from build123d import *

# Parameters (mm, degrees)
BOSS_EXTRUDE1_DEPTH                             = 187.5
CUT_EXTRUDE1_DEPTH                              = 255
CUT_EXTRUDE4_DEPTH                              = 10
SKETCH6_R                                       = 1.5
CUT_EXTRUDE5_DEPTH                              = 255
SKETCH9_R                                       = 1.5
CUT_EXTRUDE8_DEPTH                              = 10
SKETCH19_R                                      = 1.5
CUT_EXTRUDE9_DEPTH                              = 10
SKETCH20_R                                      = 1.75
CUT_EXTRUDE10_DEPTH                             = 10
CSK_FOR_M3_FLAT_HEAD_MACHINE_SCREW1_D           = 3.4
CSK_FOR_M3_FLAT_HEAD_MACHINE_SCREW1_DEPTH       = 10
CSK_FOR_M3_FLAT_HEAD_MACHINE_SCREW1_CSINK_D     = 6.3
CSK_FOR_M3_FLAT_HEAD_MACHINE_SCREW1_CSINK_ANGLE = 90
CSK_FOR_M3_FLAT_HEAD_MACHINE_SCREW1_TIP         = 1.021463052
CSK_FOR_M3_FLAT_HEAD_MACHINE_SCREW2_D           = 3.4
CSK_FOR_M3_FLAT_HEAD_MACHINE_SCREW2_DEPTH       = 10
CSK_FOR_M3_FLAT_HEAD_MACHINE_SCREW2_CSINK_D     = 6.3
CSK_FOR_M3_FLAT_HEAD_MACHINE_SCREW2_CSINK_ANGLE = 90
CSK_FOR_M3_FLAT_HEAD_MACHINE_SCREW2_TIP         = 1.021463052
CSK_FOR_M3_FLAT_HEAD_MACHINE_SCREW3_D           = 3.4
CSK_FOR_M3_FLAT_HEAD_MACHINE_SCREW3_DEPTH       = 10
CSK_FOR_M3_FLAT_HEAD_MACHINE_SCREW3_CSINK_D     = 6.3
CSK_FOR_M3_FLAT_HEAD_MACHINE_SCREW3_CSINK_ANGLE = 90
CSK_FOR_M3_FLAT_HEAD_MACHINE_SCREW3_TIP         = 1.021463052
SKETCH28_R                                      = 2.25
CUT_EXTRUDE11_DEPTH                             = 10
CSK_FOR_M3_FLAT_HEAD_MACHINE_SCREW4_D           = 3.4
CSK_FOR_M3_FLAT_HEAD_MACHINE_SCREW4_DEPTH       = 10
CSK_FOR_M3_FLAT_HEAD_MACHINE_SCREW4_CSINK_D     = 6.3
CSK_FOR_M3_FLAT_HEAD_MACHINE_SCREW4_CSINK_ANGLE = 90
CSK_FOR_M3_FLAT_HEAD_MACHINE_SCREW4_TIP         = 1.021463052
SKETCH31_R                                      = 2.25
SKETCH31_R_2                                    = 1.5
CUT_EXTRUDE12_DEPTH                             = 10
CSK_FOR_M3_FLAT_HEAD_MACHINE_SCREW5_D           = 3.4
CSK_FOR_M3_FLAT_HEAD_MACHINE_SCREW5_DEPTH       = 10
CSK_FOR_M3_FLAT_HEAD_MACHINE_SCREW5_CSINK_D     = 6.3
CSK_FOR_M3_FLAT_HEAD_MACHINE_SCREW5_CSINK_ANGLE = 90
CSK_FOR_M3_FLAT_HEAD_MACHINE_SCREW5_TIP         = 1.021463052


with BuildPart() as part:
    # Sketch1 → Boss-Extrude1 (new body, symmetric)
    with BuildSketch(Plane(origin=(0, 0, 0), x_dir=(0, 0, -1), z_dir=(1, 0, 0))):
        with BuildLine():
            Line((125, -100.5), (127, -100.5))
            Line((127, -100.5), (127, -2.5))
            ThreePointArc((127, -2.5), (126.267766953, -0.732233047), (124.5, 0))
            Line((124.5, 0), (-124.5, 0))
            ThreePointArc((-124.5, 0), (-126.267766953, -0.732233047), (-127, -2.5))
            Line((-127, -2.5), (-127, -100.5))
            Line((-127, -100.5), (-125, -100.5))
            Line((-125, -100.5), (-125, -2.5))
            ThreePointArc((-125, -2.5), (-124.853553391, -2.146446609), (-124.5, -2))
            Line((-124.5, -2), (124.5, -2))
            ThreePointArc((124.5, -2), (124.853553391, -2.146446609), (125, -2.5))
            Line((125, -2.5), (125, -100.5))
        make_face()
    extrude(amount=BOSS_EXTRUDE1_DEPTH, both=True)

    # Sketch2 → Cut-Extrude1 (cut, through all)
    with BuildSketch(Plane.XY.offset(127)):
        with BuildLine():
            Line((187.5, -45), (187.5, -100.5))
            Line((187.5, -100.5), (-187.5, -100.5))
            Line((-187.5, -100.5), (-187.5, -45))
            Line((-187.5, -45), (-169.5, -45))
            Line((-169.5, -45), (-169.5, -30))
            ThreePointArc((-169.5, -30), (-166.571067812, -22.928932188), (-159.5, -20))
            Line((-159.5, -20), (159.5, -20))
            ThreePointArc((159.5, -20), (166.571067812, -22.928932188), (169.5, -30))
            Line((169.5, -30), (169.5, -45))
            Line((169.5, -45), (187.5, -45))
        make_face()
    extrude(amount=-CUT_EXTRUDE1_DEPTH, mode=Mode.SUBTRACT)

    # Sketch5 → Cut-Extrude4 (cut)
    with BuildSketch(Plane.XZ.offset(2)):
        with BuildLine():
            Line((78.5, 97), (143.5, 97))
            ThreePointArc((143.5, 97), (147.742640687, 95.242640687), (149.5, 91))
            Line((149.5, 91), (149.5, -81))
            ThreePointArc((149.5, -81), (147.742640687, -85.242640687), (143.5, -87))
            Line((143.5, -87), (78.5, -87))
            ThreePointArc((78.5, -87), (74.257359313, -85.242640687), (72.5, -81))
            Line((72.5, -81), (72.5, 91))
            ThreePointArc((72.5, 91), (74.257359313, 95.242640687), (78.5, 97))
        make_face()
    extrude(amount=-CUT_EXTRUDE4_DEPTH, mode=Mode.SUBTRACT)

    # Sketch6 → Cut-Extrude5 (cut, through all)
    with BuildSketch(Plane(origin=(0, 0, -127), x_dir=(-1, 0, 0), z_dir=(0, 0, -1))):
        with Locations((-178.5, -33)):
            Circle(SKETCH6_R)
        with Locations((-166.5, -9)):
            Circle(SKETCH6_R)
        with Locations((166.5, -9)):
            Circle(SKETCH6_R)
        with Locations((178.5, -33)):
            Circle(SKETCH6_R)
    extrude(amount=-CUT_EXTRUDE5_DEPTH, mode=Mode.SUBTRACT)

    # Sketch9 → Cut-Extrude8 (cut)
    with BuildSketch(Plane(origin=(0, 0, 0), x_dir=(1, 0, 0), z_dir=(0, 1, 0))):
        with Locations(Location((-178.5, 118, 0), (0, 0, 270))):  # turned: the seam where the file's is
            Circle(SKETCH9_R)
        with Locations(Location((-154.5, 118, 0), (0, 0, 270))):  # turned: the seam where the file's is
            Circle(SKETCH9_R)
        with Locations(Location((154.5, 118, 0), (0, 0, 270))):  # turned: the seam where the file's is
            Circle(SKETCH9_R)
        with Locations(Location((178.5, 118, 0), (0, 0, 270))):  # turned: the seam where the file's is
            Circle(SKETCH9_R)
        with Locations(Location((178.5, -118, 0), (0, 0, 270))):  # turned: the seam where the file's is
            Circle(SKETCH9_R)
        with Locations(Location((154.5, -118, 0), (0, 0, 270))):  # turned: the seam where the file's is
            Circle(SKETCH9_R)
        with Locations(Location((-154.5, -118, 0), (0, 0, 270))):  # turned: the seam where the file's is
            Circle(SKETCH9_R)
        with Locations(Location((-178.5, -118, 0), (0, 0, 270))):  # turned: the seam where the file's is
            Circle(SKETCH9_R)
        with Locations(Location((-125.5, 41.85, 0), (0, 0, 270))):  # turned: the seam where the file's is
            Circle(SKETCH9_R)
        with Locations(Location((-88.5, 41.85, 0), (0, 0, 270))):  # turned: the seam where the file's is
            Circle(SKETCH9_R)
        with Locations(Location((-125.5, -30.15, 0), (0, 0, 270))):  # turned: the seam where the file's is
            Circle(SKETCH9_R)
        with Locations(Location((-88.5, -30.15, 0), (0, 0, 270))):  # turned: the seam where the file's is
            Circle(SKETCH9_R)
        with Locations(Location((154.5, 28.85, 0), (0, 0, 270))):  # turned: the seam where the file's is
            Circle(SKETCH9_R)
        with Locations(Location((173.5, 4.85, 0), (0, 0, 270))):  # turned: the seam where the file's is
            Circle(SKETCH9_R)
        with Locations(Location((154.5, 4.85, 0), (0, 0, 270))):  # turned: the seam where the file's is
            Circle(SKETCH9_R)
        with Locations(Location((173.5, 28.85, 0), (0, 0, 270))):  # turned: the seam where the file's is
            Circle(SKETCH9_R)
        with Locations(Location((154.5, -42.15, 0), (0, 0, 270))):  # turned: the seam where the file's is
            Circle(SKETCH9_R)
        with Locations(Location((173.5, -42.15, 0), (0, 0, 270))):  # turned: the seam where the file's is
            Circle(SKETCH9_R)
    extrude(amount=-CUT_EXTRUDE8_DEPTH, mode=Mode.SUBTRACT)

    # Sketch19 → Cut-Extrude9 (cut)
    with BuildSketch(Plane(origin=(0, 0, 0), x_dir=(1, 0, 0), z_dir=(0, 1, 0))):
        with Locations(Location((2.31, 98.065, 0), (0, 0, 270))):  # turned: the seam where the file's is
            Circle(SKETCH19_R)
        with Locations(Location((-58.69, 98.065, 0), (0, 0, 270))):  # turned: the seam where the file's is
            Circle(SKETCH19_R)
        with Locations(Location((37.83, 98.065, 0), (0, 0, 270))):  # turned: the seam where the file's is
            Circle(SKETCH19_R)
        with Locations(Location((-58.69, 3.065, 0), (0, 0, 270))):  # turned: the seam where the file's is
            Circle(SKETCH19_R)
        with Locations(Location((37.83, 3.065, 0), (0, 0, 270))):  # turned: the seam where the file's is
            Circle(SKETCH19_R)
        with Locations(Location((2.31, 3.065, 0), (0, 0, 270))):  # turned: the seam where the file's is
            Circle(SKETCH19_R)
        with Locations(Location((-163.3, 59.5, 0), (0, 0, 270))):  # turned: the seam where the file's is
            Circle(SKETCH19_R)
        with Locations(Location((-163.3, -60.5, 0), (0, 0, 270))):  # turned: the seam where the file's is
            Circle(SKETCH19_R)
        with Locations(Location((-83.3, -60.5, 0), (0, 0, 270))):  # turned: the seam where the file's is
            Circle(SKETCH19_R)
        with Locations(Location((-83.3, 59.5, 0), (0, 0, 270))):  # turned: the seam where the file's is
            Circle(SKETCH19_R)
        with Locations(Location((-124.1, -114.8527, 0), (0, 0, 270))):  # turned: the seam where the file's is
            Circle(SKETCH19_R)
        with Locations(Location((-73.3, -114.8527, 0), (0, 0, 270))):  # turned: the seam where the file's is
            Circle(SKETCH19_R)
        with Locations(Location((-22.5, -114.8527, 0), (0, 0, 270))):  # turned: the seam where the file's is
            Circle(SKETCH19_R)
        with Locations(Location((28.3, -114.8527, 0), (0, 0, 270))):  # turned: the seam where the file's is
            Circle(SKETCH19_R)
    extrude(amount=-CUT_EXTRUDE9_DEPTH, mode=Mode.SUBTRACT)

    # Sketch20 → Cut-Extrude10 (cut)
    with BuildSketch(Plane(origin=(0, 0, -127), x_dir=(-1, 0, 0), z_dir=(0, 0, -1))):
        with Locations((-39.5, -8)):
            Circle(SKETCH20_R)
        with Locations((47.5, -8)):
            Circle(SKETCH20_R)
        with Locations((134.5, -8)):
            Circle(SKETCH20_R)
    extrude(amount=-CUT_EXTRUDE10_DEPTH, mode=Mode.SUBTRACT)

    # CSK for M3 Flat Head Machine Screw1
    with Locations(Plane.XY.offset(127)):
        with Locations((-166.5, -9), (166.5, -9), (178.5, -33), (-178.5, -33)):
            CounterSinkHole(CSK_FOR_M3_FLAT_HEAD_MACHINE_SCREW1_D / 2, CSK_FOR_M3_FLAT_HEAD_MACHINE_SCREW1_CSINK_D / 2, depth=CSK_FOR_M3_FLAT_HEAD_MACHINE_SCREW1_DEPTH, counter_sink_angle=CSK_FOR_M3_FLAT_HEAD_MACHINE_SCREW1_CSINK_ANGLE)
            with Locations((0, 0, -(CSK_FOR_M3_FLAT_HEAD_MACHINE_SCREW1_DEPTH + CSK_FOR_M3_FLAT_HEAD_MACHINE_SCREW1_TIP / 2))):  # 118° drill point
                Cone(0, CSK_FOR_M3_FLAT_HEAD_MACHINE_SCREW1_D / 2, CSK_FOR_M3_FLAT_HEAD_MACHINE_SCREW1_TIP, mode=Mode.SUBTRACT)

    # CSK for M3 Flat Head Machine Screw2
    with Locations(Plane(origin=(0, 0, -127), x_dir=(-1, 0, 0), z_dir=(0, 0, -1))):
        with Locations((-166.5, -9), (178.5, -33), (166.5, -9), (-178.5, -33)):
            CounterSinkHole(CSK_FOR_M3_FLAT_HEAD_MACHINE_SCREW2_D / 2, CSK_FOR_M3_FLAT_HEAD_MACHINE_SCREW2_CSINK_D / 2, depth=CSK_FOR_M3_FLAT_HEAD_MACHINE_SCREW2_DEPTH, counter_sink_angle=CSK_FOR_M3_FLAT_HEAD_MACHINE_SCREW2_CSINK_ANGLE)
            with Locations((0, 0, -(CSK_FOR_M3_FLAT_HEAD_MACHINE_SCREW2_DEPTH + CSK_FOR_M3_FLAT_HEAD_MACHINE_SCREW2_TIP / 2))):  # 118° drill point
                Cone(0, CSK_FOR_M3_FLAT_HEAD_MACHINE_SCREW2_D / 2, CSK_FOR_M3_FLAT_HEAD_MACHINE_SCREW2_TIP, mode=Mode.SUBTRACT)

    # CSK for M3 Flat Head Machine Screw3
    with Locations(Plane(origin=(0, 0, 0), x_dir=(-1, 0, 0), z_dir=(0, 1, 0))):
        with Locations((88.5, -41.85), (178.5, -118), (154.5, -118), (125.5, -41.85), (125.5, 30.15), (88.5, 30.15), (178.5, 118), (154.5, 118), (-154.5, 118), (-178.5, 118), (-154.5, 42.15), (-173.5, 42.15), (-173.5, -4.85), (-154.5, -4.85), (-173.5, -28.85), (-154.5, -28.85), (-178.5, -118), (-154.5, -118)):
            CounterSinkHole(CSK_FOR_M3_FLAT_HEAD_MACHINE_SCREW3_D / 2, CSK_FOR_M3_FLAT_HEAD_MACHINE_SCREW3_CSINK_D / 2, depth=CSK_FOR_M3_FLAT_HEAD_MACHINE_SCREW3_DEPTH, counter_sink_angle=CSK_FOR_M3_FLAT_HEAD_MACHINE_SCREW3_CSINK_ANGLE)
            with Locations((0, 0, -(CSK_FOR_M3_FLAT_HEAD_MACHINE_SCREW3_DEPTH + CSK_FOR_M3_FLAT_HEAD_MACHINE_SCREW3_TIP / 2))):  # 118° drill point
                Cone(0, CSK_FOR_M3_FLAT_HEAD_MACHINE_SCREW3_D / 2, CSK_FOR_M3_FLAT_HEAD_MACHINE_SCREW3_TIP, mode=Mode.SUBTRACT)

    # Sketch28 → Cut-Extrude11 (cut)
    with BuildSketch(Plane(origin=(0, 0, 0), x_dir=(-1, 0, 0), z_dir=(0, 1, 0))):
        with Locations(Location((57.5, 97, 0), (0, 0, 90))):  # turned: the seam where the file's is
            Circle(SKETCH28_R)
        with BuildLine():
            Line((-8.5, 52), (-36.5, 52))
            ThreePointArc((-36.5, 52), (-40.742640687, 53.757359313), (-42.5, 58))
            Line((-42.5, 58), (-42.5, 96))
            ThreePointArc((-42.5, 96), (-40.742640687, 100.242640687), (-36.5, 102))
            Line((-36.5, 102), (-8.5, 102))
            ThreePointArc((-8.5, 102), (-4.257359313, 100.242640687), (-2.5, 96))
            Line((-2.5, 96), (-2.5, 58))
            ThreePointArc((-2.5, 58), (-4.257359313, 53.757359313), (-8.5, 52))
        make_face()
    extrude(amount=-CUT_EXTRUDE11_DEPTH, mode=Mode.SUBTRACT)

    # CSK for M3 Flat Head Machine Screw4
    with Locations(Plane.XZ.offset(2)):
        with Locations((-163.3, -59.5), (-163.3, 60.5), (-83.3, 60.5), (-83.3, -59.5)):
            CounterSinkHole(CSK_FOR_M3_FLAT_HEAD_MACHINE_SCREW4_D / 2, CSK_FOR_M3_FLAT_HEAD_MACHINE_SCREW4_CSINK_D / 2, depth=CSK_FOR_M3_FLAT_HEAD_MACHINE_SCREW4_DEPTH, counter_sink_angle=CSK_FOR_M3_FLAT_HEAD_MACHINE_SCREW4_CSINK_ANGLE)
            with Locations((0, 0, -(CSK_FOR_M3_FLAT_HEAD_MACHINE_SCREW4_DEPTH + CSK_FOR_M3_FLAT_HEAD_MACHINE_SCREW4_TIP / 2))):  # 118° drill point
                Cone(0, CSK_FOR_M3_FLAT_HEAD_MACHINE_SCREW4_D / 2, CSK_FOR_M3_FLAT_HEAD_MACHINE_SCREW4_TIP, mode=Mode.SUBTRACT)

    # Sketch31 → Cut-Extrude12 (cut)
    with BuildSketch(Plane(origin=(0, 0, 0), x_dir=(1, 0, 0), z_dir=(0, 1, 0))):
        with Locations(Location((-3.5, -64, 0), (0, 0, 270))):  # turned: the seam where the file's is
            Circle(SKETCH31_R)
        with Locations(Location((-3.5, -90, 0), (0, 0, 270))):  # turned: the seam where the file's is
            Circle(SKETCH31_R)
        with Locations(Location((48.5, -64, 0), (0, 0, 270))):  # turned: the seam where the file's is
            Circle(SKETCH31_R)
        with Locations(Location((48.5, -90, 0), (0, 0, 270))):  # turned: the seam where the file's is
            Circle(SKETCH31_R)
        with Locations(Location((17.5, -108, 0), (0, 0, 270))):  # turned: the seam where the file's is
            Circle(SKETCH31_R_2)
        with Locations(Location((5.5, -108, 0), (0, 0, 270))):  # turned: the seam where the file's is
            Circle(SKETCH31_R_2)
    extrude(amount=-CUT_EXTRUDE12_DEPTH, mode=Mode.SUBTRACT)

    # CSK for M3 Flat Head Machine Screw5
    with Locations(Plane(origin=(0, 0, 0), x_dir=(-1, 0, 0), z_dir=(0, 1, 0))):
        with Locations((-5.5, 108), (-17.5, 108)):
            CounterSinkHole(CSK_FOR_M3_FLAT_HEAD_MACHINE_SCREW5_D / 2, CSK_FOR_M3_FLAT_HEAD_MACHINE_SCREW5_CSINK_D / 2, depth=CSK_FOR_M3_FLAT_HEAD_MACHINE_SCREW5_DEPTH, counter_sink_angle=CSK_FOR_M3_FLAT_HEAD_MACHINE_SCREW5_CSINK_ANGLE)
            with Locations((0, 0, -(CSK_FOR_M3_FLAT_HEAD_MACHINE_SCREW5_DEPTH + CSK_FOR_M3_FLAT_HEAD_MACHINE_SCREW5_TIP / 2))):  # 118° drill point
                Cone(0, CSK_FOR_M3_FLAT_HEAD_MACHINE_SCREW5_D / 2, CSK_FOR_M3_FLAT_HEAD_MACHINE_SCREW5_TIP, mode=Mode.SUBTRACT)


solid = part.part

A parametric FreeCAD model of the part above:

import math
import FreeCAD as App
import Part
import Sketcher
from FreeCAD import Vector
Q = App.Units.Quantity

doc = App.newDocument("Part")
body = doc.addObject("PartDesign::Body", "Body")

# Sketch on YZ plane
sketch1 = body.newObject("Sketcher::SketchObject", "Sketch")
sketch1.AttachmentSupport = (doc.getObject("YZ_Plane"), [""])
sketch1.MapMode = "FlatFace"
sketch1.addGeometry([
    Part.LineSegment(Vector(-100.5, -125, 0), Vector(-100.5, -127, 0)),  # 0
    Part.LineSegment(Vector(-100.5, -127, 0), Vector(-2.5, -127, 0)),  # 1
    Part.ArcOfCircle(Part.Circle(Vector(-2.5, -124.5, 0), Vector(0, 0, 1), 2.5), math.radians(-90), math.radians(0)),  # 2
    Part.LineSegment(Vector(0, -124.5, 0), Vector(0, 124.5, 0)),  # 3
    Part.ArcOfCircle(Part.Circle(Vector(-2.5, 124.5, 0), Vector(0, 0, 1), 2.5), math.radians(0), math.radians(90)),  # 4
    Part.LineSegment(Vector(-2.5, 127, 0), Vector(-100.5, 127, 0)),  # 5
    Part.LineSegment(Vector(-100.5, 127, 0), Vector(-100.5, 125, 0)),  # 6
    Part.LineSegment(Vector(-100.5, 125, 0), Vector(-2.5, 125, 0)),  # 7
    Part.ArcOfCircle(Part.Circle(Vector(-2.5, 124.5, 0), Vector(0, 0, 1), 0.5), math.radians(0), math.radians(90)),  # 8
    Part.LineSegment(Vector(-2, 124.5, 0), Vector(-2, -124.5, 0)),  # 9
    Part.ArcOfCircle(Part.Circle(Vector(-2.5, -124.5, 0), Vector(0, 0, 1), 0.5), math.radians(-90), math.radians(0)),  # 10
    Part.LineSegment(Vector(-2.5, -125, 0), Vector(-100.5, -125, 0)),  # 11
], False)
sketch1.addConstraint([
    Sketcher.Constraint("Coincident", 0, 2, 1, 1),
    Sketcher.Constraint("Tangent", 1, 2, 2, 1),
    Sketcher.Constraint("Tangent", 2, 2, 3, 1),
    Sketcher.Constraint("Tangent", 3, 2, 4, 1),
    Sketcher.Constraint("Tangent", 4, 2, 5, 1),
    Sketcher.Constraint("Coincident", 5, 2, 6, 1),
    Sketcher.Constraint("Coincident", 6, 2, 7, 1),
    Sketcher.Constraint("Tangent", 7, 2, 8, 2),
    Sketcher.Constraint("Tangent", 8, 1, 9, 1),
    Sketcher.Constraint("Tangent", 9, 2, 10, 2),
    Sketcher.Constraint("Tangent", 10, 1, 11, 1),
    Sketcher.Constraint("Coincident", 11, 2, 0, 1),
    Sketcher.Constraint("Vertical", 0),
    Sketcher.Constraint("Horizontal", 1),
    Sketcher.Constraint("Vertical", 3),
    Sketcher.Constraint("Horizontal", 5),
    Sketcher.Constraint("Vertical", 6),
    Sketcher.Constraint("Horizontal", 7),
    Sketcher.Constraint("Vertical", 9),
    Sketcher.Constraint("Horizontal", 11),
    Sketcher.Constraint("Coincident", 8, 3, 4, 3),
    Sketcher.Constraint("Coincident", 10, 3, 2, 3),
    Sketcher.Constraint("Equal", 2, 4),
    Sketcher.Constraint("Symmetric", 2, 2, 3, 2, -1, 1),
    Sketcher.Constraint("Vertical", 0, 2, 5, 2),
    Sketcher.Constraint("Radius", 2, Q("2.5 mm")),
    Sketcher.Constraint("Radius", 8, Q("0.5 mm")),
    Sketcher.Constraint("DistanceX", 1, 1, 1, 2, Q("98 mm")),
    Sketcher.Constraint("DistanceY", 3, 1, 3, 2, Q("249 mm")),
])
pad1 = body.newObject("PartDesign::Pad", "Pad")
pad1.Profile = sketch1
pad1.Length = 375
pad1.Midplane = True

# Sketch on XY plane
sketch2 = body.newObject("Sketcher::SketchObject", "Sketch001")
sketch2.AttachmentSupport = (doc.getObject("XY_Plane"), [""])
sketch2.MapMode = "FlatFace"
sketch2.AttachmentOffset = App.Placement(Vector(0, 0, 127), App.Rotation())
sketch2.addGeometry([
    Part.LineSegment(Vector(188, -100, 0), Vector(188, -45, 0)),  # 0
    Part.LineSegment(Vector(188, -45, 0), Vector(170, -45, 0)),  # 1
    Part.LineSegment(Vector(170, -45, 0), Vector(170, -30, 0)),  # 2
    Part.ArcOfCircle(Part.Circle(Vector(160, -30, 0), Vector(0, 0, 1), 10), math.radians(0), math.radians(90)),  # 3
    Part.LineSegment(Vector(160, -20, 0), Vector(-160, -20, 0)),  # 4
    Part.ArcOfCircle(Part.Circle(Vector(-160, -30, 0), Vector(0, 0, 1), 10), math.radians(90), math.radians(180)),  # 5
    Part.LineSegment(Vector(-170, -30, 0), Vector(-170, -45, 0)),  # 6
    Part.LineSegment(Vector(-170, -45, 0), Vector(-188, -45, 0)),  # 7
    Part.LineSegment(Vector(-188, -45, 0), Vector(-188, -100, 0)),  # 8
    Part.LineSegment(Vector(-188, -100, 0), Vector(188, -100, 0)),  # 9
], False)
sketch2.addConstraint([
    Sketcher.Constraint("Coincident", 0, 2, 1, 1),
    Sketcher.Constraint("Coincident", 1, 2, 2, 1),
    Sketcher.Constraint("Tangent", 2, 2, 3, 1),
    Sketcher.Constraint("Tangent", 3, 2, 4, 1),
    Sketcher.Constraint("Tangent", 4, 2, 5, 1),
    Sketcher.Constraint("Tangent", 5, 2, 6, 1),
    Sketcher.Constraint("Coincident", 6, 2, 7, 1),
    Sketcher.Constraint("Coincident", 7, 2, 8, 1),
    Sketcher.Constraint("Coincident", 8, 2, 9, 1),
    Sketcher.Constraint("Coincident", 9, 2, 0, 1),
    Sketcher.Constraint("Vertical", 0),
    Sketcher.Constraint("Horizontal", 1),
    Sketcher.Constraint("Vertical", 2),
    Sketcher.Constraint("Horizontal", 4),
    Sketcher.Constraint("Vertical", 6),
    Sketcher.Constraint("Horizontal", 7),
    Sketcher.Constraint("Vertical", 8),
    Sketcher.Constraint("Horizontal", 9),
    Sketcher.Constraint("Equal", 3, 5),
    Sketcher.Constraint("Symmetric", 1, 2, 6, 2, -2),
    Sketcher.Constraint("Equal", 1, 7),
    Sketcher.Constraint("Radius", 3, Q("10 mm")),
    Sketcher.Constraint("DistanceX", 1, 2, 1, 1, Q("18 mm")),
    Sketcher.Constraint("DistanceX", 4, 2, 4, 1, Q("319 mm")),
    Sketcher.Constraint("DistanceY", 2, 1, 2, 2, Q("15 mm")),
    Sketcher.Constraint("DistanceY", 0, 1, 0, 2, Q("55.5 mm")),
    Sketcher.Constraint("DistanceY", 3, 3, -1, 1, Q("30 mm")),
])
pocket1 = body.newObject("PartDesign::Pocket", "Pocket")
pocket1.Profile = sketch2
pocket1.Type = "ThroughAll"

# Sketch on XZ plane
sketch3 = body.newObject("Sketcher::SketchObject", "Sketch002")
sketch3.AttachmentSupport = (doc.getObject("XZ_Plane"), [""])
sketch3.MapMode = "FlatFace"
sketch3.AttachmentOffset = App.Placement(Vector(0, 0, 2), App.Rotation())
sketch3.addGeometry([
    Part.LineSegment(Vector(144, 97, 0), Vector(78, 97, 0)),  # 0
    Part.ArcOfCircle(Part.Circle(Vector(78, 91, 0), Vector(0, 0, 1), 6), math.radians(90), math.radians(180)),  # 1
    Part.LineSegment(Vector(72, 91, 0), Vector(72, -81, 0)),  # 2
    Part.ArcOfCircle(Part.Circle(Vector(78, -81, 0), Vector(0, 0, 1), 6), math.radians(180), math.radians(270)),  # 3
    Part.LineSegment(Vector(78, -87, 0), Vector(144, -87, 0)),  # 4
    Part.ArcOfCircle(Part.Circle(Vector(144, -81, 0), Vector(0, 0, 1), 6), math.radians(-90), math.radians(0)),  # 5
    Part.LineSegment(Vector(150, -81, 0), Vector(150, 91, 0)),  # 6
    Part.ArcOfCircle(Part.Circle(Vector(144, 91, 0), Vector(0, 0, 1), 6), math.radians(0), math.radians(90)),  # 7
], False)
sketch3.addConstraint([
    Sketcher.Constraint("Tangent", 0, 2, 1, 1),
    Sketcher.Constraint("Tangent", 1, 2, 2, 1),
    Sketcher.Constraint("Tangent", 2, 2, 3, 1),
    Sketcher.Constraint("Tangent", 3, 2, 4, 1),
    Sketcher.Constraint("Tangent", 4, 2, 5, 1),
    Sketcher.Constraint("Tangent", 5, 2, 6, 1),
    Sketcher.Constraint("Tangent", 6, 2, 7, 1),
    Sketcher.Constraint("Tangent", 7, 2, 0, 1),
    Sketcher.Constraint("Horizontal", 0),
    Sketcher.Constraint("Vertical", 2),
    Sketcher.Constraint("Horizontal", 4),
    Sketcher.Constraint("Vertical", 6),
    Sketcher.Constraint("Equal", 1, 3),
    Sketcher.Constraint("Equal", 3, 5),
    Sketcher.Constraint("Equal", 5, 7),
    Sketcher.Constraint("Radius", 1, Q("6 mm")),
    Sketcher.Constraint("DistanceX", 0, 2, 0, 1, Q("65 mm")),
    Sketcher.Constraint("DistanceY", 2, 2, 2, 1, Q("172 mm")),
    Sketcher.Constraint("DistanceY", -1, 1, 1, 3, Q("91 mm")),
    Sketcher.Constraint("DistanceX", -1, 1, 1, 3, Q("78.5 mm")),
])
pocket2 = body.newObject("PartDesign::Pocket", "Pocket001")
pocket2.Profile = sketch3
pocket2.Length = 10

# Sketch on XY plane
sketch4 = body.newObject("Sketcher::SketchObject", "Sketch003")
sketch4.AttachmentSupport = (doc.getObject("XY_Plane"), [""])
sketch4.MapMode = "FlatFace"
sketch4.AttachmentOffset = App.Placement(Vector(0, 0, -127), App.Rotation())
sketch4.addGeometry([
    Part.Circle(Vector(178.5, -33, 0), Vector(0, 0, 1), 1.5),
    Part.Circle(Vector(166.5, -9, 0), Vector(0, 0, 1), 1.5),
    Part.Circle(Vector(-166.5, -9, 0), Vector(0, 0, 1), 1.5),
    Part.Circle(Vector(-178.5, -33, 0), Vector(0, 0, 1), 1.5),
], False)
sketch4.addConstraint([
    Sketcher.Constraint("Equal", 0, 1),
    Sketcher.Constraint("Equal", 1, 2),
    Sketcher.Constraint("Equal", 2, 3),
    Sketcher.Constraint("Symmetric", 1, 3, 2, 3, -2),
    Sketcher.Constraint("Symmetric", 0, 3, 3, 3, -2),
    Sketcher.Constraint("Diameter", 0, Q("3 mm")),
    Sketcher.Constraint("DistanceY", 0, 3, -1, 1, Q("33 mm")),
    Sketcher.Constraint("DistanceY", 1, 3, -1, 1, Q("9 mm")),
    Sketcher.Constraint("DistanceX", 1, 3, 0, 3, Q("12 mm")),
    Sketcher.Constraint("DistanceX", 2, 3, 1, 3, Q("333 mm")),
])
pocket3 = body.newObject("PartDesign::Pocket", "Pocket002")
pocket3.Profile = sketch4
pocket3.Type = "ThroughAll"
pocket3.Reversed = True

# Sketch on XZ plane
sketch5 = body.newObject("Sketcher::SketchObject", "Sketch004")
sketch5.AttachmentSupport = (doc.getObject("XZ_Plane"), [""])
sketch5.MapMode = "FlatFace"
sketch5.addGeometry([
    Part.Circle(Vector(-178.5, -118, 0), Vector(0, 0, 1), 1.5),  # 0
    Part.Circle(Vector(-154.5, -118, 0), Vector(0, 0, 1), 1.5),  # 1
    Part.Circle(Vector(154.5, -118, 0), Vector(0, 0, 1), 1.5),  # 2
    Part.Circle(Vector(178.5, -118, 0), Vector(0, 0, 1), 1.5),  # 3
    Part.Circle(Vector(178.5, 118, 0), Vector(0, 0, 1), 1.5),  # 4
    Part.Circle(Vector(154.5, 118, 0), Vector(0, 0, 1), 1.5),  # 5
    Part.Circle(Vector(-154.5, 118, 0), Vector(0, 0, 1), 1.5),  # 6
    Part.Circle(Vector(-178.5, 118, 0), Vector(0, 0, 1), 1.5),  # 7
    Part.Circle(Vector(-125.5, -41.9, 0), Vector(0, 0, 1), 1.5),  # 8
    Part.Circle(Vector(-88.5, -41.9, 0), Vector(0, 0, 1), 1.5),  # 9
    Part.Circle(Vector(-125.5, 30.1, 0), Vector(0, 0, 1), 1.5),  # 10
    Part.Circle(Vector(-88.5, 30.1, 0), Vector(0, 0, 1), 1.5),  # 11
    Part.Circle(Vector(154.5, -28.9, 0), Vector(0, 0, 1), 1.5),  # 12
    Part.Circle(Vector(173.5, -4.8, 0), Vector(0, 0, 1), 1.5),  # 13
    Part.Circle(Vector(154.5, -4.8, 0), Vector(0, 0, 1), 1.5),  # 14
    Part.Circle(Vector(173.5, -28.9, 0), Vector(0, 0, 1), 1.5),  # 15
    Part.Circle(Vector(154.5, 42.1, 0), Vector(0, 0, 1), 1.5),  # 16
    Part.Circle(Vector(173.5, 42.1, 0), Vector(0, 0, 1), 1.5),  # 17
], False)
sketch5.addConstraint([
    Sketcher.Constraint("Equal", 0, 1),
    Sketcher.Constraint("Equal", 1, 2),
    Sketcher.Constraint("Equal", 2, 3),
    Sketcher.Constraint("Equal", 3, 4),
    Sketcher.Constraint("Equal", 4, 5),
    Sketcher.Constraint("Equal", 5, 6),
    Sketcher.Constraint("Equal", 6, 7),
    Sketcher.Constraint("Equal", 7, 8),
    Sketcher.Constraint("Equal", 8, 9),
    Sketcher.Constraint("Equal", 9, 10),
    Sketcher.Constraint("Equal", 10, 11),
    Sketcher.Constraint("Equal", 11, 12),
    Sketcher.Constraint("Equal", 12, 13),
    Sketcher.Constraint("Equal", 13, 14),
    Sketcher.Constraint("Equal", 14, 15),
    Sketcher.Constraint("Equal", 15, 16),
    Sketcher.Constraint("Equal", 16, 17),
    Sketcher.Constraint("Symmetric", 0, 3, 4, 3, -1, 1),
    Sketcher.Constraint("Symmetric", 1, 3, 5, 3, -1, 1),
    Sketcher.Constraint("Symmetric", 2, 3, 6, 3, -1, 1),
    Sketcher.Constraint("Symmetric", 3, 3, 7, 3, -1, 1),
    Sketcher.Constraint("Symmetric", 1, 3, 2, 3, -2),
    Sketcher.Constraint("Symmetric", 0, 3, 3, 3, -2),
    Sketcher.Constraint("Horizontal", 0, 3, 1, 3),
    Sketcher.Constraint("Horizontal", 8, 3, 9, 3),
    Sketcher.Constraint("Horizontal", 10, 3, 11, 3),
    Sketcher.Constraint("Horizontal", 13, 3, 14, 3),
    Sketcher.Constraint("Horizontal", 12, 3, 15, 3),
    Sketcher.Constraint("Horizontal", 16, 3, 17, 3),
    Sketcher.Constraint("Vertical", 8, 3, 10, 3),
    Sketcher.Constraint("Vertical", 9, 3, 11, 3),
    Sketcher.Constraint("Vertical", 5, 3, 12, 3),
    Sketcher.Constraint("Vertical", 12, 3, 14, 3),
    Sketcher.Constraint("Vertical", 13, 3, 15, 3),
    Sketcher.Constraint("Vertical", 14, 3, 16, 3),
    Sketcher.Constraint("Vertical", 15, 3, 17, 3),
    Sketcher.Constraint("Diameter", 0, Q("3 mm")),
    Sketcher.Constraint("DistanceY", 0, 3, -1, 1, Q("118 mm")),
    Sketcher.Constraint("DistanceX", 0, 3, 1, 3, Q("24 mm")),
    Sketcher.Constraint("DistanceX", 1, 3, 2, 3, Q("309 mm")),
    Sketcher.Constraint("DistanceX", 1, 3, 8, 3, Q("29 mm")),
    Sketcher.Constraint("DistanceX", 8, 3, 9, 3, Q("37 mm")),
    Sketcher.Constraint("DistanceY", 8, 3, 10, 3, Q("72 mm")),
    Sketcher.Constraint("DistanceY", 9, 3, 12, 3, Q("13 mm")),
    Sketcher.Constraint("DistanceX", 12, 3, 13, 3, Q("19 mm")),
    Sketcher.Constraint("DistanceY", 12, 3, 13, 3, Q("24 mm")),
    Sketcher.Constraint("DistanceY", 14, 3, 16, 3, Q("47 mm")),
    Sketcher.Constraint("DistanceY", 8, 3, -1, 1, Q("41.85 mm")),
])
pocket4 = body.newObject("PartDesign::Pocket", "Pocket003")
pocket4.Profile = sketch5
pocket4.Length = 10
pocket4.Reversed = True

# Sketch on XZ plane
sketch6 = body.newObject("Sketcher::SketchObject", "Sketch005")
sketch6.AttachmentSupport = (doc.getObject("XZ_Plane"), [""])
sketch6.MapMode = "FlatFace"
sketch6.addGeometry([
    Part.Circle(Vector(2.3, -98.1, 0), Vector(0, 0, 1), 1.5),  # 0
    Part.Circle(Vector(-58.7, -98.1, 0), Vector(0, 0, 1), 1.5),  # 1
    Part.Circle(Vector(37.8, -98.1, 0), Vector(0, 0, 1), 1.5),  # 2
    Part.Circle(Vector(-58.7, -3.1, 0), Vector(0, 0, 1), 1.5),  # 3
    Part.Circle(Vector(37.8, -3.1, 0), Vector(0, 0, 1), 1.5),  # 4
    Part.Circle(Vector(2.3, -3.1, 0), Vector(0, 0, 1), 1.5),  # 5
    Part.Circle(Vector(-163.3, -59.5, 0), Vector(0, 0, 1), 1.5),  # 6
    Part.Circle(Vector(-163.3, 60.5, 0), Vector(0, 0, 1), 1.5),  # 7
    Part.Circle(Vector(-83.3, 60.5, 0), Vector(0, 0, 1), 1.5),  # 8
    Part.Circle(Vector(-83.3, -59.5, 0), Vector(0, 0, 1), 1.5),  # 9
    Part.Circle(Vector(-124.1, 114.9, 0), Vector(0, 0, 1), 1.5),  # 10
    Part.Circle(Vector(-73.3, 114.9, 0), Vector(0, 0, 1), 1.5),  # 11
    Part.Circle(Vector(-22.5, 114.9, 0), Vector(0, 0, 1), 1.5),  # 12
    Part.Circle(Vector(28.3, 114.9, 0), Vector(0, 0, 1), 1.5),  # 13
], False)
sketch6.addConstraint([
    Sketcher.Constraint("Equal", 0, 1),
    Sketcher.Constraint("Equal", 1, 2),
    Sketcher.Constraint("Equal", 2, 3),
    Sketcher.Constraint("Equal", 3, 4),
    Sketcher.Constraint("Equal", 4, 5),
    Sketcher.Constraint("Equal", 5, 6),
    Sketcher.Constraint("Equal", 6, 7),
    Sketcher.Constraint("Equal", 7, 8),
    Sketcher.Constraint("Equal", 8, 9),
    Sketcher.Constraint("Equal", 9, 10),
    Sketcher.Constraint("Equal", 10, 11),
    Sketcher.Constraint("Equal", 11, 12),
    Sketcher.Constraint("Equal", 12, 13),
    Sketcher.Constraint("Horizontal", 0, 3, 1, 3),
    Sketcher.Constraint("Horizontal", 1, 3, 2, 3),
    Sketcher.Constraint("Horizontal", 3, 3, 4, 3),
    Sketcher.Constraint("Horizontal", 4, 3, 5, 3),
    Sketcher.Constraint("Horizontal", 7, 3, 8, 3),
    Sketcher.Constraint("Horizontal", 6, 3, 9, 3),
    Sketcher.Constraint("Horizontal", 10, 3, 11, 3),
    Sketcher.Constraint("Horizontal", 11, 3, 12, 3),
    Sketcher.Constraint("Horizontal", 12, 3, 13, 3),
    Sketcher.Constraint("Vertical", 1, 3, 3, 3),
    Sketcher.Constraint("Vertical", 2, 3, 4, 3),
    Sketcher.Constraint("Vertical", 0, 3, 5, 3),
    Sketcher.Constraint("Vertical", 6, 3, 7, 3),
    Sketcher.Constraint("Vertical", 8, 3, 9, 3),
    Sketcher.Constraint("Diameter", 0, Q("3 mm")),
    Sketcher.Constraint("DistanceX", 1, 3, 0, 3, Q("61 mm")),
    Sketcher.Constraint("DistanceY", 1, 3, 3, 3, Q("95 mm")),
    Sketcher.Constraint("DistanceY", 6, 3, 7, 3, Q("120 mm")),
    Sketcher.Constraint("DistanceX", 7, 3, 8, 3, Q("80 mm")),
    Sketcher.Constraint("DistanceX", 8, 3, 11, 3, Q("10 mm")),
    Sketcher.Constraint("DistanceX", 6, 3, -1, 1, Q("163.3 mm")),
    Sketcher.Constraint("DistanceY", 6, 3, -1, 1, Q("59.5 mm")),
    Sketcher.Constraint("DistanceX", 10, 3, -1, 1, Q("124.1 mm")),
    Sketcher.Constraint("DistanceX", 12, 3, -1, 1, Q("22.5 mm")),
    Sketcher.Constraint("DistanceX", -1, 1, 13, 3, Q("28.3 mm")),
    Sketcher.Constraint("DistanceX", -1, 1, 0, 3, Q("2.31 mm")),
    Sketcher.Constraint("DistanceX", -1, 1, 2, 3, Q("37.83 mm")),
    Sketcher.Constraint("DistanceY", 0, 3, -1, 1, Q("98.065 mm")),
    Sketcher.Constraint("DistanceY", -1, 1, 10, 3, Q("114.8527 mm")),
])
pocket5 = body.newObject("PartDesign::Pocket", "Pocket004")
pocket5.Profile = sketch6
pocket5.Length = 10
pocket5.Reversed = True

# Sketch on XY plane
sketch7 = body.newObject("Sketcher::SketchObject", "Sketch006")
sketch7.AttachmentSupport = (doc.getObject("XY_Plane"), [""])
sketch7.MapMode = "FlatFace"
sketch7.AttachmentOffset = App.Placement(Vector(0, 0, -127), App.Rotation())
sketch7.addGeometry([
    Part.Circle(Vector(39.5, -8, 0), Vector(0, 0, 1), 1.8),
    Part.Circle(Vector(-47.5, -8, 0), Vector(0, 0, 1), 1.8),
    Part.Circle(Vector(-134.5, -8, 0), Vector(0, 0, 1), 1.8),
], False)
sketch7.addConstraint([
    Sketcher.Constraint("Equal", 0, 1),
    Sketcher.Constraint("Equal", 1, 2),
    Sketcher.Constraint("Horizontal", 0, 3, 1, 3),
    Sketcher.Constraint("Horizontal", 1, 3, 2, 3),
    Sketcher.Constraint("Diameter", 0, Q("3.5 mm")),
    Sketcher.Constraint("DistanceY", 0, 3, -1, 1, Q("8 mm")),
    Sketcher.Constraint("DistanceX", 1, 3, 0, 3, Q("87 mm")),
    Sketcher.Constraint("DistanceX", 2, 3, 1, 3, Q("87 mm")),
    Sketcher.Constraint("DistanceX", -1, 1, 0, 3, Q("39.5 mm")),
])
pocket6 = body.newObject("PartDesign::Pocket", "Pocket005")
pocket6.Profile = sketch7
pocket6.Length = 10
pocket6.Reversed = True

# Sketch on XY plane
sketch8 = body.newObject("Sketcher::SketchObject", "Sketch007")
sketch8.AttachmentSupport = (doc.getObject("XY_Plane"), [""])
sketch8.MapMode = "FlatFace"
sketch8.AttachmentOffset = App.Placement(Vector(0, 0, 127), App.Rotation())
sketch8.addGeometry([
    Part.Circle(Vector(-166.5, -9, 0), Vector(0, 0, 1), 1.7),
    Part.Circle(Vector(166.5, -9, 0), Vector(0, 0, 1), 1.7),
    Part.Circle(Vector(178.5, -33, 0), Vector(0, 0, 1), 1.7),
    Part.Circle(Vector(-178.5, -33, 0), Vector(0, 0, 1), 1.7),
], False)
sketch8.addConstraint([
    Sketcher.Constraint("Equal", 0, 1),
    Sketcher.Constraint("Equal", 1, 2),
    Sketcher.Constraint("Equal", 2, 3),
    Sketcher.Constraint("Symmetric", 0, 3, 1, 3, -2),
    Sketcher.Constraint("Symmetric", 2, 3, 3, 3, -2),
    Sketcher.Constraint("Diameter", 0, Q("3.4 mm")),
    Sketcher.Constraint("DistanceY", 0, 3, -1, 1, Q("9 mm")),
    Sketcher.Constraint("DistanceY", 2, 3, -1, 1, Q("33 mm")),
    Sketcher.Constraint("DistanceX", 0, 3, 1, 3, Q("333 mm")),
    Sketcher.Constraint("DistanceX", 1, 3, 2, 3, Q("12 mm")),
])
doc.recompute()
hole = body.newObject("PartDesign::Hole", "Hole")
hole.Profile = sketch8
hole.ThreadType = "None"
hole.Diameter = 3.4
hole.DepthType = "Dimension"
hole.Depth = 10
hole.DrillPoint = "Angled"
hole.DrillPointAngle = 118
hole.HoleCutType = "Countersink"
hole.HoleCutDiameter = 6.3
hole.HoleCutCountersinkAngle = 90

# Sketch on XY plane
sketch9 = body.newObject("Sketcher::SketchObject", "Sketch008")
sketch9.AttachmentSupport = (doc.getObject("XY_Plane"), [""])
sketch9.MapMode = "FlatFace"
sketch9.AttachmentOffset = App.Placement(Vector(0, 0, -127), App.Rotation())
sketch9.addGeometry([
    Part.Circle(Vector(166.5, -9, 0), Vector(0, 0, 1), 1.7),
    Part.Circle(Vector(-178.5, -33, 0), Vector(0, 0, 1), 1.7),
    Part.Circle(Vector(-166.5, -9, 0), Vector(0, 0, 1), 1.7),
    Part.Circle(Vector(178.5, -33, 0), Vector(0, 0, 1), 1.7),
], False)
sketch9.addConstraint([
    Sketcher.Constraint("Equal", 0, 1),
    Sketcher.Constraint("Equal", 1, 2),
    Sketcher.Constraint("Equal", 2, 3),
    Sketcher.Constraint("Symmetric", 0, 3, 2, 3, -2),
    Sketcher.Constraint("Symmetric", 1, 3, 3, 3, -2),
    Sketcher.Constraint("Diameter", 0, Q("3.4 mm")),
    Sketcher.Constraint("DistanceY", 0, 3, -1, 1, Q("9 mm")),
    Sketcher.Constraint("DistanceY", 1, 3, -1, 1, Q("33 mm")),
    Sketcher.Constraint("DistanceX", 1, 3, 0, 3, Q("345 mm")),
    Sketcher.Constraint("DistanceX", 1, 3, 2, 3, Q("12 mm")),
])
doc.recompute()
hole2 = body.newObject("PartDesign::Hole", "Hole001")
hole2.Profile = sketch9
hole2.ThreadType = "None"
hole2.Diameter = 3.4
hole2.DepthType = "Dimension"
hole2.Depth = 10
hole2.DrillPoint = "Angled"
hole2.DrillPointAngle = 118
hole2.HoleCutType = "Countersink"
hole2.HoleCutDiameter = 6.3
hole2.HoleCutCountersinkAngle = 90
hole2.Reversed = True

# Sketch on XZ plane
sketch10 = body.newObject("Sketcher::SketchObject", "Sketch009")
sketch10.AttachmentSupport = (doc.getObject("XZ_Plane"), [""])
sketch10.MapMode = "FlatFace"
sketch10.addGeometry([
    Part.Circle(Vector(-88.5, -41.9, 0), Vector(0, 0, 1), 1.7),  # 0
    Part.Circle(Vector(-178.5, -118, 0), Vector(0, 0, 1), 1.7),  # 1
    Part.Circle(Vector(-154.5, -118, 0), Vector(0, 0, 1), 1.7),  # 2
    Part.Circle(Vector(-125.5, -41.9, 0), Vector(0, 0, 1), 1.7),  # 3
    Part.Circle(Vector(-125.5, 30.1, 0), Vector(0, 0, 1), 1.7),  # 4
    Part.Circle(Vector(-88.5, 30.1, 0), Vector(0, 0, 1), 1.7),  # 5
    Part.Circle(Vector(-178.5, 118, 0), Vector(0, 0, 1), 1.7),  # 6
    Part.Circle(Vector(-154.5, 118, 0), Vector(0, 0, 1), 1.7),  # 7
    Part.Circle(Vector(154.5, 118, 0), Vector(0, 0, 1), 1.7),  # 8
    Part.Circle(Vector(178.5, 118, 0), Vector(0, 0, 1), 1.7),  # 9
    Part.Circle(Vector(154.5, 42.1, 0), Vector(0, 0, 1), 1.7),  # 10
    Part.Circle(Vector(173.5, 42.1, 0), Vector(0, 0, 1), 1.7),  # 11
    Part.Circle(Vector(173.5, -4.8, 0), Vector(0, 0, 1), 1.7),  # 12
    Part.Circle(Vector(154.5, -4.8, 0), Vector(0, 0, 1), 1.7),  # 13
    Part.Circle(Vector(173.5, -28.9, 0), Vector(0, 0, 1), 1.7),  # 14
    Part.Circle(Vector(154.5, -28.9, 0), Vector(0, 0, 1), 1.7),  # 15
    Part.Circle(Vector(178.5, -118, 0), Vector(0, 0, 1), 1.7),  # 16
    Part.Circle(Vector(154.5, -118, 0), Vector(0, 0, 1), 1.7),  # 17
], False)
sketch10.addConstraint([
    Sketcher.Constraint("Equal", 0, 1),
    Sketcher.Constraint("Equal", 1, 2),
    Sketcher.Constraint("Equal", 2, 3),
    Sketcher.Constraint("Equal", 3, 4),
    Sketcher.Constraint("Equal", 4, 5),
    Sketcher.Constraint("Equal", 5, 6),
    Sketcher.Constraint("Equal", 6, 7),
    Sketcher.Constraint("Equal", 7, 8),
    Sketcher.Constraint("Equal", 8, 9),
    Sketcher.Constraint("Equal", 9, 10),
    Sketcher.Constraint("Equal", 10, 11),
    Sketcher.Constraint("Equal", 11, 12),
    Sketcher.Constraint("Equal", 12, 13),
    Sketcher.Constraint("Equal", 13, 14),
    Sketcher.Constraint("Equal", 14, 15),
    Sketcher.Constraint("Equal", 15, 16),
    Sketcher.Constraint("Equal", 16, 17),
    Sketcher.Constraint("Symmetric", 2, 3, 8, 3, -1, 1),
    Sketcher.Constraint("Symmetric", 1, 3, 9, 3, -1, 1),
    Sketcher.Constraint("Symmetric", 6, 3, 16, 3, -1, 1),
    Sketcher.Constraint("Symmetric", 7, 3, 17, 3, -1, 1),
    Sketcher.Constraint("Symmetric", 7, 3, 8, 3, -2),
    Sketcher.Constraint("Symmetric", 6, 3, 9, 3, -2),
    Sketcher.Constraint("Horizontal", 1, 3, 2, 3),
    Sketcher.Constraint("Horizontal", 0, 3, 3, 3),
    Sketcher.Constraint("Horizontal", 4, 3, 5, 3),
    Sketcher.Constraint("Horizontal", 10, 3, 11, 3),
    Sketcher.Constraint("Horizontal", 12, 3, 13, 3),
    Sketcher.Constraint("Horizontal", 14, 3, 15, 3),
    Sketcher.Constraint("Vertical", 3, 3, 4, 3),
    Sketcher.Constraint("Vertical", 0, 3, 5, 3),
    Sketcher.Constraint("Vertical", 8, 3, 10, 3),
    Sketcher.Constraint("Vertical", 11, 3, 12, 3),
    Sketcher.Constraint("Vertical", 10, 3, 13, 3),
    Sketcher.Constraint("Vertical", 12, 3, 14, 3),
    Sketcher.Constraint("Vertical", 13, 3, 15, 3),
    Sketcher.Constraint("Diameter", 0, Q("3.4 mm")),
    Sketcher.Constraint("DistanceY", 1, 3, -1, 1, Q("118 mm")),
    Sketcher.Constraint("DistanceX", 1, 3, 0, 3, Q("90 mm")),
    Sketcher.Constraint("DistanceX", 1, 3, 2, 3, Q("24 mm")),
    Sketcher.Constraint("DistanceX", 3, 3, 0, 3, Q("37 mm")),
    Sketcher.Constraint("DistanceY", 3, 3, 4, 3, Q("72 mm")),
    Sketcher.Constraint("DistanceX", 5, 3, 8, 3, Q("243 mm")),
    Sketcher.Constraint("DistanceY", 5, 3, 10, 3, Q("12 mm")),
    Sketcher.Constraint("DistanceX", 10, 3, 11, 3, Q("19 mm")),
    Sketcher.Constraint("DistanceY", 12, 3, 11, 3, Q("47 mm")),
    Sketcher.Constraint("DistanceY", 14, 3, 12, 3, Q("24 mm")),
    Sketcher.Constraint("DistanceY", 0, 3, -1, 1, Q("41.85 mm")),
])
doc.recompute()
hole3 = body.newObject("PartDesign::Hole", "Hole002")
hole3.Profile = sketch10
hole3.ThreadType = "None"
hole3.Diameter = 3.4
hole3.DepthType = "Dimension"
hole3.Depth = 10
hole3.DrillPoint = "Angled"
hole3.DrillPointAngle = 118
hole3.HoleCutType = "Countersink"
hole3.HoleCutDiameter = 6.3
hole3.HoleCutCountersinkAngle = 90
hole3.Reversed = True

# Sketch on XZ plane
sketch11 = body.newObject("Sketcher::SketchObject", "Sketch010")
sketch11.AttachmentSupport = (doc.getObject("XZ_Plane"), [""])
sketch11.MapMode = "FlatFace"
sketch11.addGeometry([
    Part.Circle(Vector(-57.5, 97, 0), Vector(0, 0, 1), 2.2),  # 0
    Part.LineSegment(Vector(36.5, 52, 0), Vector(8.5, 52, 0)),  # 1
    Part.ArcOfCircle(Part.Circle(Vector(8.5, 58, 0), Vector(0, 0, 1), 6), math.radians(180), math.radians(270)),  # 2
    Part.LineSegment(Vector(2.5, 58, 0), Vector(2.5, 96, 0)),  # 3
    Part.ArcOfCircle(Part.Circle(Vector(8.5, 96, 0), Vector(0, 0, 1), 6), math.radians(90), math.radians(180)),  # 4
    Part.LineSegment(Vector(8.5, 102, 0), Vector(36.5, 102, 0)),  # 5
    Part.ArcOfCircle(Part.Circle(Vector(36.5, 96, 0), Vector(0, 0, 1), 6), math.radians(0), math.radians(90)),  # 6
    Part.LineSegment(Vector(42.5, 96, 0), Vector(42.5, 58, 0)),  # 7
    Part.ArcOfCircle(Part.Circle(Vector(36.5, 58, 0), Vector(0, 0, 1), 6), math.radians(-90), math.radians(0)),  # 8
], False)
sketch11.addConstraint([
    Sketcher.Constraint("Tangent", 1, 2, 2, 2),
    Sketcher.Constraint("Tangent", 2, 1, 3, 1),
    Sketcher.Constraint("Tangent", 3, 2, 4, 2),
    Sketcher.Constraint("Tangent", 4, 1, 5, 1),
    Sketcher.Constraint("Tangent", 5, 2, 6, 2),
    Sketcher.Constraint("Tangent", 6, 1, 7, 1),
    Sketcher.Constraint("Tangent", 7, 2, 8, 2),
    Sketcher.Constraint("Tangent", 8, 1, 1, 1),
    Sketcher.Constraint("Horizontal", 1),
    Sketcher.Constraint("Vertical", 3),
    Sketcher.Constraint("Horizontal", 5),
    Sketcher.Constraint("Vertical", 7),
    Sketcher.Constraint("Equal", 2, 4),
    Sketcher.Constraint("Equal", 4, 6),
    Sketcher.Constraint("Equal", 6, 8),
    Sketcher.Constraint("Radius", 2, Q("6 mm")),
    Sketcher.Constraint("Diameter", 0, Q("4.5 mm")),
    Sketcher.Constraint("DistanceX", 1, 2, 1, 1, Q("28 mm")),
    Sketcher.Constraint("DistanceY", 3, 1, 3, 2, Q("38 mm")),
    Sketcher.Constraint("DistanceY", -1, 1, 0, 3, Q("97 mm")),
    Sketcher.Constraint("DistanceY", -1, 1, 2, 3, Q("58 mm")),
    Sketcher.Constraint("DistanceX", 0, 3, 2, 3, Q("66 mm")),
    Sketcher.Constraint("DistanceX", 0, 3, -1, 1, Q("57.5 mm")),
])
pocket7 = body.newObject("PartDesign::Pocket", "Pocket006")
pocket7.Profile = sketch11
pocket7.Length = 10
pocket7.Reversed = True

# Sketch on XZ plane
sketch12 = body.newObject("Sketcher::SketchObject", "Sketch011")
sketch12.AttachmentSupport = (doc.getObject("XZ_Plane"), [""])
sketch12.MapMode = "FlatFace"
sketch12.AttachmentOffset = App.Placement(Vector(0, 0, 2), App.Rotation())
sketch12.addGeometry([
    Part.Circle(Vector(-163.3, -59.5, 0), Vector(0, 0, 1), 1.7),
    Part.Circle(Vector(-163.3, 60.5, 0), Vector(0, 0, 1), 1.7),
    Part.Circle(Vector(-83.3, 60.5, 0), Vector(0, 0, 1), 1.7),
    Part.Circle(Vector(-83.3, -59.5, 0), Vector(0, 0, 1), 1.7),
], False)
sketch12.addConstraint([
    Sketcher.Constraint("Equal", 0, 1),
    Sketcher.Constraint("Equal", 1, 2),
    Sketcher.Constraint("Equal", 2, 3),
    Sketcher.Constraint("Horizontal", 1, 3, 2, 3),
    Sketcher.Constraint("Horizontal", 0, 3, 3, 3),
    Sketcher.Constraint("Vertical", 0, 3, 1, 3),
    Sketcher.Constraint("Vertical", 2, 3, 3, 3),
    Sketcher.Constraint("Diameter", 0, Q("3.4 mm")),
    Sketcher.Constraint("DistanceY", 0, 3, 1, 3, Q("120 mm")),
    Sketcher.Constraint("DistanceX", 1, 3, 2, 3, Q("80 mm")),
    Sketcher.Constraint("DistanceX", 0, 3, -1, 1, Q("163.3 mm")),
    Sketcher.Constraint("DistanceY", 0, 3, -1, 1, Q("59.5 mm")),
])
doc.recompute()
hole4 = body.newObject("PartDesign::Hole", "Hole003")
hole4.Profile = sketch12
hole4.ThreadType = "None"
hole4.Diameter = 3.4
hole4.DepthType = "Dimension"
hole4.Depth = 10
hole4.DrillPoint = "Angled"
hole4.DrillPointAngle = 118
hole4.HoleCutType = "Countersink"
hole4.HoleCutDiameter = 6.3
hole4.HoleCutCountersinkAngle = 90

# Sketch on XZ plane
sketch13 = body.newObject("Sketcher::SketchObject", "Sketch012")
sketch13.AttachmentSupport = (doc.getObject("XZ_Plane"), [""])
sketch13.MapMode = "FlatFace"
sketch13.addGeometry([
    Part.Circle(Vector(-3.5, 64, 0), Vector(0, 0, 1), 2.2),  # 0
    Part.Circle(Vector(-3.5, 90, 0), Vector(0, 0, 1), 2.2),  # 1
    Part.Circle(Vector(48.5, 64, 0), Vector(0, 0, 1), 2.2),  # 2
    Part.Circle(Vector(48.5, 90, 0), Vector(0, 0, 1), 2.2),  # 3
    Part.Circle(Vector(17.5, 108, 0), Vector(0, 0, 1), 1.5),  # 4
    Part.Circle(Vector(5.5, 108, 0), Vector(0, 0, 1), 1.5),  # 5
], False)
sketch13.addConstraint([
    Sketcher.Constraint("Equal", 0, 1),
    Sketcher.Constraint("Equal", 1, 2),
    Sketcher.Constraint("Equal", 2, 3),
    Sketcher.Constraint("Equal", 4, 5),
    Sketcher.Constraint("Horizontal", 0, 3, 2, 3),
    Sketcher.Constraint("Horizontal", 1, 3, 3, 3),
    Sketcher.Constraint("Horizontal", 4, 3, 5, 3),
    Sketcher.Constraint("Vertical", 0, 3, 1, 3),
    Sketcher.Constraint("Vertical", 2, 3, 3, 3),
    Sketcher.Constraint("Diameter", 4, Q("3 mm")),
    Sketcher.Constraint("Diameter", 0, Q("4.5 mm")),
    Sketcher.Constraint("DistanceY", -1, 1, 0, 3, Q("64 mm")),
    Sketcher.Constraint("DistanceY", -1, 1, 1, 3, Q("90 mm")),
    Sketcher.Constraint("DistanceY", -1, 1, 4, 3, Q("108 mm")),
    Sketcher.Constraint("DistanceX", 0, 3, 2, 3, Q("52 mm")),
    Sketcher.Constraint("DistanceX", 1, 3, 4, 3, Q("21 mm")),
    Sketcher.Constraint("DistanceX", 5, 3, 4, 3, Q("12 mm")),
    Sketcher.Constraint("DistanceX", 0, 3, -1, 1, Q("3.5 mm")),
])
pocket8 = body.newObject("PartDesign::Pocket", "Pocket007")
pocket8.Profile = sketch13
pocket8.Length = 10
pocket8.Reversed = True

# Sketch on XZ plane
sketch14 = body.newObject("Sketcher::SketchObject", "Sketch013")
sketch14.AttachmentSupport = (doc.getObject("XZ_Plane"), [""])
sketch14.MapMode = "FlatFace"
sketch14.addGeometry([
    Part.Circle(Vector(5.5, 108, 0), Vector(0, 0, 1), 1.7),
    Part.Circle(Vector(17.5, 108, 0), Vector(0, 0, 1), 1.7),
], False)
sketch14.addConstraint([
    Sketcher.Constraint("Equal", 0, 1),
    Sketcher.Constraint("Horizontal", 0, 3, 1, 3),
    Sketcher.Constraint("Diameter", 0, Q("3.4 mm")),
    Sketcher.Constraint("DistanceY", -1, 1, 0, 3, Q("108 mm")),
    Sketcher.Constraint("DistanceX", 0, 3, 1, 3, Q("12 mm")),
    Sketcher.Constraint("DistanceX", -1, 1, 0, 3, Q("5.5 mm")),
])
doc.recompute()
hole5 = body.newObject("PartDesign::Hole", "Hole004")
hole5.Profile = sketch14
hole5.ThreadType = "None"
hole5.Diameter = 3.4
hole5.DepthType = "Dimension"
hole5.Depth = 10
hole5.DrillPoint = "Angled"
hole5.DrillPointAngle = 118
hole5.HoleCutType = "Countersink"
hole5.HoleCutDiameter = 6.3
hole5.HoleCutCountersinkAngle = 90
hole5.Reversed = True

doc.recompute()
